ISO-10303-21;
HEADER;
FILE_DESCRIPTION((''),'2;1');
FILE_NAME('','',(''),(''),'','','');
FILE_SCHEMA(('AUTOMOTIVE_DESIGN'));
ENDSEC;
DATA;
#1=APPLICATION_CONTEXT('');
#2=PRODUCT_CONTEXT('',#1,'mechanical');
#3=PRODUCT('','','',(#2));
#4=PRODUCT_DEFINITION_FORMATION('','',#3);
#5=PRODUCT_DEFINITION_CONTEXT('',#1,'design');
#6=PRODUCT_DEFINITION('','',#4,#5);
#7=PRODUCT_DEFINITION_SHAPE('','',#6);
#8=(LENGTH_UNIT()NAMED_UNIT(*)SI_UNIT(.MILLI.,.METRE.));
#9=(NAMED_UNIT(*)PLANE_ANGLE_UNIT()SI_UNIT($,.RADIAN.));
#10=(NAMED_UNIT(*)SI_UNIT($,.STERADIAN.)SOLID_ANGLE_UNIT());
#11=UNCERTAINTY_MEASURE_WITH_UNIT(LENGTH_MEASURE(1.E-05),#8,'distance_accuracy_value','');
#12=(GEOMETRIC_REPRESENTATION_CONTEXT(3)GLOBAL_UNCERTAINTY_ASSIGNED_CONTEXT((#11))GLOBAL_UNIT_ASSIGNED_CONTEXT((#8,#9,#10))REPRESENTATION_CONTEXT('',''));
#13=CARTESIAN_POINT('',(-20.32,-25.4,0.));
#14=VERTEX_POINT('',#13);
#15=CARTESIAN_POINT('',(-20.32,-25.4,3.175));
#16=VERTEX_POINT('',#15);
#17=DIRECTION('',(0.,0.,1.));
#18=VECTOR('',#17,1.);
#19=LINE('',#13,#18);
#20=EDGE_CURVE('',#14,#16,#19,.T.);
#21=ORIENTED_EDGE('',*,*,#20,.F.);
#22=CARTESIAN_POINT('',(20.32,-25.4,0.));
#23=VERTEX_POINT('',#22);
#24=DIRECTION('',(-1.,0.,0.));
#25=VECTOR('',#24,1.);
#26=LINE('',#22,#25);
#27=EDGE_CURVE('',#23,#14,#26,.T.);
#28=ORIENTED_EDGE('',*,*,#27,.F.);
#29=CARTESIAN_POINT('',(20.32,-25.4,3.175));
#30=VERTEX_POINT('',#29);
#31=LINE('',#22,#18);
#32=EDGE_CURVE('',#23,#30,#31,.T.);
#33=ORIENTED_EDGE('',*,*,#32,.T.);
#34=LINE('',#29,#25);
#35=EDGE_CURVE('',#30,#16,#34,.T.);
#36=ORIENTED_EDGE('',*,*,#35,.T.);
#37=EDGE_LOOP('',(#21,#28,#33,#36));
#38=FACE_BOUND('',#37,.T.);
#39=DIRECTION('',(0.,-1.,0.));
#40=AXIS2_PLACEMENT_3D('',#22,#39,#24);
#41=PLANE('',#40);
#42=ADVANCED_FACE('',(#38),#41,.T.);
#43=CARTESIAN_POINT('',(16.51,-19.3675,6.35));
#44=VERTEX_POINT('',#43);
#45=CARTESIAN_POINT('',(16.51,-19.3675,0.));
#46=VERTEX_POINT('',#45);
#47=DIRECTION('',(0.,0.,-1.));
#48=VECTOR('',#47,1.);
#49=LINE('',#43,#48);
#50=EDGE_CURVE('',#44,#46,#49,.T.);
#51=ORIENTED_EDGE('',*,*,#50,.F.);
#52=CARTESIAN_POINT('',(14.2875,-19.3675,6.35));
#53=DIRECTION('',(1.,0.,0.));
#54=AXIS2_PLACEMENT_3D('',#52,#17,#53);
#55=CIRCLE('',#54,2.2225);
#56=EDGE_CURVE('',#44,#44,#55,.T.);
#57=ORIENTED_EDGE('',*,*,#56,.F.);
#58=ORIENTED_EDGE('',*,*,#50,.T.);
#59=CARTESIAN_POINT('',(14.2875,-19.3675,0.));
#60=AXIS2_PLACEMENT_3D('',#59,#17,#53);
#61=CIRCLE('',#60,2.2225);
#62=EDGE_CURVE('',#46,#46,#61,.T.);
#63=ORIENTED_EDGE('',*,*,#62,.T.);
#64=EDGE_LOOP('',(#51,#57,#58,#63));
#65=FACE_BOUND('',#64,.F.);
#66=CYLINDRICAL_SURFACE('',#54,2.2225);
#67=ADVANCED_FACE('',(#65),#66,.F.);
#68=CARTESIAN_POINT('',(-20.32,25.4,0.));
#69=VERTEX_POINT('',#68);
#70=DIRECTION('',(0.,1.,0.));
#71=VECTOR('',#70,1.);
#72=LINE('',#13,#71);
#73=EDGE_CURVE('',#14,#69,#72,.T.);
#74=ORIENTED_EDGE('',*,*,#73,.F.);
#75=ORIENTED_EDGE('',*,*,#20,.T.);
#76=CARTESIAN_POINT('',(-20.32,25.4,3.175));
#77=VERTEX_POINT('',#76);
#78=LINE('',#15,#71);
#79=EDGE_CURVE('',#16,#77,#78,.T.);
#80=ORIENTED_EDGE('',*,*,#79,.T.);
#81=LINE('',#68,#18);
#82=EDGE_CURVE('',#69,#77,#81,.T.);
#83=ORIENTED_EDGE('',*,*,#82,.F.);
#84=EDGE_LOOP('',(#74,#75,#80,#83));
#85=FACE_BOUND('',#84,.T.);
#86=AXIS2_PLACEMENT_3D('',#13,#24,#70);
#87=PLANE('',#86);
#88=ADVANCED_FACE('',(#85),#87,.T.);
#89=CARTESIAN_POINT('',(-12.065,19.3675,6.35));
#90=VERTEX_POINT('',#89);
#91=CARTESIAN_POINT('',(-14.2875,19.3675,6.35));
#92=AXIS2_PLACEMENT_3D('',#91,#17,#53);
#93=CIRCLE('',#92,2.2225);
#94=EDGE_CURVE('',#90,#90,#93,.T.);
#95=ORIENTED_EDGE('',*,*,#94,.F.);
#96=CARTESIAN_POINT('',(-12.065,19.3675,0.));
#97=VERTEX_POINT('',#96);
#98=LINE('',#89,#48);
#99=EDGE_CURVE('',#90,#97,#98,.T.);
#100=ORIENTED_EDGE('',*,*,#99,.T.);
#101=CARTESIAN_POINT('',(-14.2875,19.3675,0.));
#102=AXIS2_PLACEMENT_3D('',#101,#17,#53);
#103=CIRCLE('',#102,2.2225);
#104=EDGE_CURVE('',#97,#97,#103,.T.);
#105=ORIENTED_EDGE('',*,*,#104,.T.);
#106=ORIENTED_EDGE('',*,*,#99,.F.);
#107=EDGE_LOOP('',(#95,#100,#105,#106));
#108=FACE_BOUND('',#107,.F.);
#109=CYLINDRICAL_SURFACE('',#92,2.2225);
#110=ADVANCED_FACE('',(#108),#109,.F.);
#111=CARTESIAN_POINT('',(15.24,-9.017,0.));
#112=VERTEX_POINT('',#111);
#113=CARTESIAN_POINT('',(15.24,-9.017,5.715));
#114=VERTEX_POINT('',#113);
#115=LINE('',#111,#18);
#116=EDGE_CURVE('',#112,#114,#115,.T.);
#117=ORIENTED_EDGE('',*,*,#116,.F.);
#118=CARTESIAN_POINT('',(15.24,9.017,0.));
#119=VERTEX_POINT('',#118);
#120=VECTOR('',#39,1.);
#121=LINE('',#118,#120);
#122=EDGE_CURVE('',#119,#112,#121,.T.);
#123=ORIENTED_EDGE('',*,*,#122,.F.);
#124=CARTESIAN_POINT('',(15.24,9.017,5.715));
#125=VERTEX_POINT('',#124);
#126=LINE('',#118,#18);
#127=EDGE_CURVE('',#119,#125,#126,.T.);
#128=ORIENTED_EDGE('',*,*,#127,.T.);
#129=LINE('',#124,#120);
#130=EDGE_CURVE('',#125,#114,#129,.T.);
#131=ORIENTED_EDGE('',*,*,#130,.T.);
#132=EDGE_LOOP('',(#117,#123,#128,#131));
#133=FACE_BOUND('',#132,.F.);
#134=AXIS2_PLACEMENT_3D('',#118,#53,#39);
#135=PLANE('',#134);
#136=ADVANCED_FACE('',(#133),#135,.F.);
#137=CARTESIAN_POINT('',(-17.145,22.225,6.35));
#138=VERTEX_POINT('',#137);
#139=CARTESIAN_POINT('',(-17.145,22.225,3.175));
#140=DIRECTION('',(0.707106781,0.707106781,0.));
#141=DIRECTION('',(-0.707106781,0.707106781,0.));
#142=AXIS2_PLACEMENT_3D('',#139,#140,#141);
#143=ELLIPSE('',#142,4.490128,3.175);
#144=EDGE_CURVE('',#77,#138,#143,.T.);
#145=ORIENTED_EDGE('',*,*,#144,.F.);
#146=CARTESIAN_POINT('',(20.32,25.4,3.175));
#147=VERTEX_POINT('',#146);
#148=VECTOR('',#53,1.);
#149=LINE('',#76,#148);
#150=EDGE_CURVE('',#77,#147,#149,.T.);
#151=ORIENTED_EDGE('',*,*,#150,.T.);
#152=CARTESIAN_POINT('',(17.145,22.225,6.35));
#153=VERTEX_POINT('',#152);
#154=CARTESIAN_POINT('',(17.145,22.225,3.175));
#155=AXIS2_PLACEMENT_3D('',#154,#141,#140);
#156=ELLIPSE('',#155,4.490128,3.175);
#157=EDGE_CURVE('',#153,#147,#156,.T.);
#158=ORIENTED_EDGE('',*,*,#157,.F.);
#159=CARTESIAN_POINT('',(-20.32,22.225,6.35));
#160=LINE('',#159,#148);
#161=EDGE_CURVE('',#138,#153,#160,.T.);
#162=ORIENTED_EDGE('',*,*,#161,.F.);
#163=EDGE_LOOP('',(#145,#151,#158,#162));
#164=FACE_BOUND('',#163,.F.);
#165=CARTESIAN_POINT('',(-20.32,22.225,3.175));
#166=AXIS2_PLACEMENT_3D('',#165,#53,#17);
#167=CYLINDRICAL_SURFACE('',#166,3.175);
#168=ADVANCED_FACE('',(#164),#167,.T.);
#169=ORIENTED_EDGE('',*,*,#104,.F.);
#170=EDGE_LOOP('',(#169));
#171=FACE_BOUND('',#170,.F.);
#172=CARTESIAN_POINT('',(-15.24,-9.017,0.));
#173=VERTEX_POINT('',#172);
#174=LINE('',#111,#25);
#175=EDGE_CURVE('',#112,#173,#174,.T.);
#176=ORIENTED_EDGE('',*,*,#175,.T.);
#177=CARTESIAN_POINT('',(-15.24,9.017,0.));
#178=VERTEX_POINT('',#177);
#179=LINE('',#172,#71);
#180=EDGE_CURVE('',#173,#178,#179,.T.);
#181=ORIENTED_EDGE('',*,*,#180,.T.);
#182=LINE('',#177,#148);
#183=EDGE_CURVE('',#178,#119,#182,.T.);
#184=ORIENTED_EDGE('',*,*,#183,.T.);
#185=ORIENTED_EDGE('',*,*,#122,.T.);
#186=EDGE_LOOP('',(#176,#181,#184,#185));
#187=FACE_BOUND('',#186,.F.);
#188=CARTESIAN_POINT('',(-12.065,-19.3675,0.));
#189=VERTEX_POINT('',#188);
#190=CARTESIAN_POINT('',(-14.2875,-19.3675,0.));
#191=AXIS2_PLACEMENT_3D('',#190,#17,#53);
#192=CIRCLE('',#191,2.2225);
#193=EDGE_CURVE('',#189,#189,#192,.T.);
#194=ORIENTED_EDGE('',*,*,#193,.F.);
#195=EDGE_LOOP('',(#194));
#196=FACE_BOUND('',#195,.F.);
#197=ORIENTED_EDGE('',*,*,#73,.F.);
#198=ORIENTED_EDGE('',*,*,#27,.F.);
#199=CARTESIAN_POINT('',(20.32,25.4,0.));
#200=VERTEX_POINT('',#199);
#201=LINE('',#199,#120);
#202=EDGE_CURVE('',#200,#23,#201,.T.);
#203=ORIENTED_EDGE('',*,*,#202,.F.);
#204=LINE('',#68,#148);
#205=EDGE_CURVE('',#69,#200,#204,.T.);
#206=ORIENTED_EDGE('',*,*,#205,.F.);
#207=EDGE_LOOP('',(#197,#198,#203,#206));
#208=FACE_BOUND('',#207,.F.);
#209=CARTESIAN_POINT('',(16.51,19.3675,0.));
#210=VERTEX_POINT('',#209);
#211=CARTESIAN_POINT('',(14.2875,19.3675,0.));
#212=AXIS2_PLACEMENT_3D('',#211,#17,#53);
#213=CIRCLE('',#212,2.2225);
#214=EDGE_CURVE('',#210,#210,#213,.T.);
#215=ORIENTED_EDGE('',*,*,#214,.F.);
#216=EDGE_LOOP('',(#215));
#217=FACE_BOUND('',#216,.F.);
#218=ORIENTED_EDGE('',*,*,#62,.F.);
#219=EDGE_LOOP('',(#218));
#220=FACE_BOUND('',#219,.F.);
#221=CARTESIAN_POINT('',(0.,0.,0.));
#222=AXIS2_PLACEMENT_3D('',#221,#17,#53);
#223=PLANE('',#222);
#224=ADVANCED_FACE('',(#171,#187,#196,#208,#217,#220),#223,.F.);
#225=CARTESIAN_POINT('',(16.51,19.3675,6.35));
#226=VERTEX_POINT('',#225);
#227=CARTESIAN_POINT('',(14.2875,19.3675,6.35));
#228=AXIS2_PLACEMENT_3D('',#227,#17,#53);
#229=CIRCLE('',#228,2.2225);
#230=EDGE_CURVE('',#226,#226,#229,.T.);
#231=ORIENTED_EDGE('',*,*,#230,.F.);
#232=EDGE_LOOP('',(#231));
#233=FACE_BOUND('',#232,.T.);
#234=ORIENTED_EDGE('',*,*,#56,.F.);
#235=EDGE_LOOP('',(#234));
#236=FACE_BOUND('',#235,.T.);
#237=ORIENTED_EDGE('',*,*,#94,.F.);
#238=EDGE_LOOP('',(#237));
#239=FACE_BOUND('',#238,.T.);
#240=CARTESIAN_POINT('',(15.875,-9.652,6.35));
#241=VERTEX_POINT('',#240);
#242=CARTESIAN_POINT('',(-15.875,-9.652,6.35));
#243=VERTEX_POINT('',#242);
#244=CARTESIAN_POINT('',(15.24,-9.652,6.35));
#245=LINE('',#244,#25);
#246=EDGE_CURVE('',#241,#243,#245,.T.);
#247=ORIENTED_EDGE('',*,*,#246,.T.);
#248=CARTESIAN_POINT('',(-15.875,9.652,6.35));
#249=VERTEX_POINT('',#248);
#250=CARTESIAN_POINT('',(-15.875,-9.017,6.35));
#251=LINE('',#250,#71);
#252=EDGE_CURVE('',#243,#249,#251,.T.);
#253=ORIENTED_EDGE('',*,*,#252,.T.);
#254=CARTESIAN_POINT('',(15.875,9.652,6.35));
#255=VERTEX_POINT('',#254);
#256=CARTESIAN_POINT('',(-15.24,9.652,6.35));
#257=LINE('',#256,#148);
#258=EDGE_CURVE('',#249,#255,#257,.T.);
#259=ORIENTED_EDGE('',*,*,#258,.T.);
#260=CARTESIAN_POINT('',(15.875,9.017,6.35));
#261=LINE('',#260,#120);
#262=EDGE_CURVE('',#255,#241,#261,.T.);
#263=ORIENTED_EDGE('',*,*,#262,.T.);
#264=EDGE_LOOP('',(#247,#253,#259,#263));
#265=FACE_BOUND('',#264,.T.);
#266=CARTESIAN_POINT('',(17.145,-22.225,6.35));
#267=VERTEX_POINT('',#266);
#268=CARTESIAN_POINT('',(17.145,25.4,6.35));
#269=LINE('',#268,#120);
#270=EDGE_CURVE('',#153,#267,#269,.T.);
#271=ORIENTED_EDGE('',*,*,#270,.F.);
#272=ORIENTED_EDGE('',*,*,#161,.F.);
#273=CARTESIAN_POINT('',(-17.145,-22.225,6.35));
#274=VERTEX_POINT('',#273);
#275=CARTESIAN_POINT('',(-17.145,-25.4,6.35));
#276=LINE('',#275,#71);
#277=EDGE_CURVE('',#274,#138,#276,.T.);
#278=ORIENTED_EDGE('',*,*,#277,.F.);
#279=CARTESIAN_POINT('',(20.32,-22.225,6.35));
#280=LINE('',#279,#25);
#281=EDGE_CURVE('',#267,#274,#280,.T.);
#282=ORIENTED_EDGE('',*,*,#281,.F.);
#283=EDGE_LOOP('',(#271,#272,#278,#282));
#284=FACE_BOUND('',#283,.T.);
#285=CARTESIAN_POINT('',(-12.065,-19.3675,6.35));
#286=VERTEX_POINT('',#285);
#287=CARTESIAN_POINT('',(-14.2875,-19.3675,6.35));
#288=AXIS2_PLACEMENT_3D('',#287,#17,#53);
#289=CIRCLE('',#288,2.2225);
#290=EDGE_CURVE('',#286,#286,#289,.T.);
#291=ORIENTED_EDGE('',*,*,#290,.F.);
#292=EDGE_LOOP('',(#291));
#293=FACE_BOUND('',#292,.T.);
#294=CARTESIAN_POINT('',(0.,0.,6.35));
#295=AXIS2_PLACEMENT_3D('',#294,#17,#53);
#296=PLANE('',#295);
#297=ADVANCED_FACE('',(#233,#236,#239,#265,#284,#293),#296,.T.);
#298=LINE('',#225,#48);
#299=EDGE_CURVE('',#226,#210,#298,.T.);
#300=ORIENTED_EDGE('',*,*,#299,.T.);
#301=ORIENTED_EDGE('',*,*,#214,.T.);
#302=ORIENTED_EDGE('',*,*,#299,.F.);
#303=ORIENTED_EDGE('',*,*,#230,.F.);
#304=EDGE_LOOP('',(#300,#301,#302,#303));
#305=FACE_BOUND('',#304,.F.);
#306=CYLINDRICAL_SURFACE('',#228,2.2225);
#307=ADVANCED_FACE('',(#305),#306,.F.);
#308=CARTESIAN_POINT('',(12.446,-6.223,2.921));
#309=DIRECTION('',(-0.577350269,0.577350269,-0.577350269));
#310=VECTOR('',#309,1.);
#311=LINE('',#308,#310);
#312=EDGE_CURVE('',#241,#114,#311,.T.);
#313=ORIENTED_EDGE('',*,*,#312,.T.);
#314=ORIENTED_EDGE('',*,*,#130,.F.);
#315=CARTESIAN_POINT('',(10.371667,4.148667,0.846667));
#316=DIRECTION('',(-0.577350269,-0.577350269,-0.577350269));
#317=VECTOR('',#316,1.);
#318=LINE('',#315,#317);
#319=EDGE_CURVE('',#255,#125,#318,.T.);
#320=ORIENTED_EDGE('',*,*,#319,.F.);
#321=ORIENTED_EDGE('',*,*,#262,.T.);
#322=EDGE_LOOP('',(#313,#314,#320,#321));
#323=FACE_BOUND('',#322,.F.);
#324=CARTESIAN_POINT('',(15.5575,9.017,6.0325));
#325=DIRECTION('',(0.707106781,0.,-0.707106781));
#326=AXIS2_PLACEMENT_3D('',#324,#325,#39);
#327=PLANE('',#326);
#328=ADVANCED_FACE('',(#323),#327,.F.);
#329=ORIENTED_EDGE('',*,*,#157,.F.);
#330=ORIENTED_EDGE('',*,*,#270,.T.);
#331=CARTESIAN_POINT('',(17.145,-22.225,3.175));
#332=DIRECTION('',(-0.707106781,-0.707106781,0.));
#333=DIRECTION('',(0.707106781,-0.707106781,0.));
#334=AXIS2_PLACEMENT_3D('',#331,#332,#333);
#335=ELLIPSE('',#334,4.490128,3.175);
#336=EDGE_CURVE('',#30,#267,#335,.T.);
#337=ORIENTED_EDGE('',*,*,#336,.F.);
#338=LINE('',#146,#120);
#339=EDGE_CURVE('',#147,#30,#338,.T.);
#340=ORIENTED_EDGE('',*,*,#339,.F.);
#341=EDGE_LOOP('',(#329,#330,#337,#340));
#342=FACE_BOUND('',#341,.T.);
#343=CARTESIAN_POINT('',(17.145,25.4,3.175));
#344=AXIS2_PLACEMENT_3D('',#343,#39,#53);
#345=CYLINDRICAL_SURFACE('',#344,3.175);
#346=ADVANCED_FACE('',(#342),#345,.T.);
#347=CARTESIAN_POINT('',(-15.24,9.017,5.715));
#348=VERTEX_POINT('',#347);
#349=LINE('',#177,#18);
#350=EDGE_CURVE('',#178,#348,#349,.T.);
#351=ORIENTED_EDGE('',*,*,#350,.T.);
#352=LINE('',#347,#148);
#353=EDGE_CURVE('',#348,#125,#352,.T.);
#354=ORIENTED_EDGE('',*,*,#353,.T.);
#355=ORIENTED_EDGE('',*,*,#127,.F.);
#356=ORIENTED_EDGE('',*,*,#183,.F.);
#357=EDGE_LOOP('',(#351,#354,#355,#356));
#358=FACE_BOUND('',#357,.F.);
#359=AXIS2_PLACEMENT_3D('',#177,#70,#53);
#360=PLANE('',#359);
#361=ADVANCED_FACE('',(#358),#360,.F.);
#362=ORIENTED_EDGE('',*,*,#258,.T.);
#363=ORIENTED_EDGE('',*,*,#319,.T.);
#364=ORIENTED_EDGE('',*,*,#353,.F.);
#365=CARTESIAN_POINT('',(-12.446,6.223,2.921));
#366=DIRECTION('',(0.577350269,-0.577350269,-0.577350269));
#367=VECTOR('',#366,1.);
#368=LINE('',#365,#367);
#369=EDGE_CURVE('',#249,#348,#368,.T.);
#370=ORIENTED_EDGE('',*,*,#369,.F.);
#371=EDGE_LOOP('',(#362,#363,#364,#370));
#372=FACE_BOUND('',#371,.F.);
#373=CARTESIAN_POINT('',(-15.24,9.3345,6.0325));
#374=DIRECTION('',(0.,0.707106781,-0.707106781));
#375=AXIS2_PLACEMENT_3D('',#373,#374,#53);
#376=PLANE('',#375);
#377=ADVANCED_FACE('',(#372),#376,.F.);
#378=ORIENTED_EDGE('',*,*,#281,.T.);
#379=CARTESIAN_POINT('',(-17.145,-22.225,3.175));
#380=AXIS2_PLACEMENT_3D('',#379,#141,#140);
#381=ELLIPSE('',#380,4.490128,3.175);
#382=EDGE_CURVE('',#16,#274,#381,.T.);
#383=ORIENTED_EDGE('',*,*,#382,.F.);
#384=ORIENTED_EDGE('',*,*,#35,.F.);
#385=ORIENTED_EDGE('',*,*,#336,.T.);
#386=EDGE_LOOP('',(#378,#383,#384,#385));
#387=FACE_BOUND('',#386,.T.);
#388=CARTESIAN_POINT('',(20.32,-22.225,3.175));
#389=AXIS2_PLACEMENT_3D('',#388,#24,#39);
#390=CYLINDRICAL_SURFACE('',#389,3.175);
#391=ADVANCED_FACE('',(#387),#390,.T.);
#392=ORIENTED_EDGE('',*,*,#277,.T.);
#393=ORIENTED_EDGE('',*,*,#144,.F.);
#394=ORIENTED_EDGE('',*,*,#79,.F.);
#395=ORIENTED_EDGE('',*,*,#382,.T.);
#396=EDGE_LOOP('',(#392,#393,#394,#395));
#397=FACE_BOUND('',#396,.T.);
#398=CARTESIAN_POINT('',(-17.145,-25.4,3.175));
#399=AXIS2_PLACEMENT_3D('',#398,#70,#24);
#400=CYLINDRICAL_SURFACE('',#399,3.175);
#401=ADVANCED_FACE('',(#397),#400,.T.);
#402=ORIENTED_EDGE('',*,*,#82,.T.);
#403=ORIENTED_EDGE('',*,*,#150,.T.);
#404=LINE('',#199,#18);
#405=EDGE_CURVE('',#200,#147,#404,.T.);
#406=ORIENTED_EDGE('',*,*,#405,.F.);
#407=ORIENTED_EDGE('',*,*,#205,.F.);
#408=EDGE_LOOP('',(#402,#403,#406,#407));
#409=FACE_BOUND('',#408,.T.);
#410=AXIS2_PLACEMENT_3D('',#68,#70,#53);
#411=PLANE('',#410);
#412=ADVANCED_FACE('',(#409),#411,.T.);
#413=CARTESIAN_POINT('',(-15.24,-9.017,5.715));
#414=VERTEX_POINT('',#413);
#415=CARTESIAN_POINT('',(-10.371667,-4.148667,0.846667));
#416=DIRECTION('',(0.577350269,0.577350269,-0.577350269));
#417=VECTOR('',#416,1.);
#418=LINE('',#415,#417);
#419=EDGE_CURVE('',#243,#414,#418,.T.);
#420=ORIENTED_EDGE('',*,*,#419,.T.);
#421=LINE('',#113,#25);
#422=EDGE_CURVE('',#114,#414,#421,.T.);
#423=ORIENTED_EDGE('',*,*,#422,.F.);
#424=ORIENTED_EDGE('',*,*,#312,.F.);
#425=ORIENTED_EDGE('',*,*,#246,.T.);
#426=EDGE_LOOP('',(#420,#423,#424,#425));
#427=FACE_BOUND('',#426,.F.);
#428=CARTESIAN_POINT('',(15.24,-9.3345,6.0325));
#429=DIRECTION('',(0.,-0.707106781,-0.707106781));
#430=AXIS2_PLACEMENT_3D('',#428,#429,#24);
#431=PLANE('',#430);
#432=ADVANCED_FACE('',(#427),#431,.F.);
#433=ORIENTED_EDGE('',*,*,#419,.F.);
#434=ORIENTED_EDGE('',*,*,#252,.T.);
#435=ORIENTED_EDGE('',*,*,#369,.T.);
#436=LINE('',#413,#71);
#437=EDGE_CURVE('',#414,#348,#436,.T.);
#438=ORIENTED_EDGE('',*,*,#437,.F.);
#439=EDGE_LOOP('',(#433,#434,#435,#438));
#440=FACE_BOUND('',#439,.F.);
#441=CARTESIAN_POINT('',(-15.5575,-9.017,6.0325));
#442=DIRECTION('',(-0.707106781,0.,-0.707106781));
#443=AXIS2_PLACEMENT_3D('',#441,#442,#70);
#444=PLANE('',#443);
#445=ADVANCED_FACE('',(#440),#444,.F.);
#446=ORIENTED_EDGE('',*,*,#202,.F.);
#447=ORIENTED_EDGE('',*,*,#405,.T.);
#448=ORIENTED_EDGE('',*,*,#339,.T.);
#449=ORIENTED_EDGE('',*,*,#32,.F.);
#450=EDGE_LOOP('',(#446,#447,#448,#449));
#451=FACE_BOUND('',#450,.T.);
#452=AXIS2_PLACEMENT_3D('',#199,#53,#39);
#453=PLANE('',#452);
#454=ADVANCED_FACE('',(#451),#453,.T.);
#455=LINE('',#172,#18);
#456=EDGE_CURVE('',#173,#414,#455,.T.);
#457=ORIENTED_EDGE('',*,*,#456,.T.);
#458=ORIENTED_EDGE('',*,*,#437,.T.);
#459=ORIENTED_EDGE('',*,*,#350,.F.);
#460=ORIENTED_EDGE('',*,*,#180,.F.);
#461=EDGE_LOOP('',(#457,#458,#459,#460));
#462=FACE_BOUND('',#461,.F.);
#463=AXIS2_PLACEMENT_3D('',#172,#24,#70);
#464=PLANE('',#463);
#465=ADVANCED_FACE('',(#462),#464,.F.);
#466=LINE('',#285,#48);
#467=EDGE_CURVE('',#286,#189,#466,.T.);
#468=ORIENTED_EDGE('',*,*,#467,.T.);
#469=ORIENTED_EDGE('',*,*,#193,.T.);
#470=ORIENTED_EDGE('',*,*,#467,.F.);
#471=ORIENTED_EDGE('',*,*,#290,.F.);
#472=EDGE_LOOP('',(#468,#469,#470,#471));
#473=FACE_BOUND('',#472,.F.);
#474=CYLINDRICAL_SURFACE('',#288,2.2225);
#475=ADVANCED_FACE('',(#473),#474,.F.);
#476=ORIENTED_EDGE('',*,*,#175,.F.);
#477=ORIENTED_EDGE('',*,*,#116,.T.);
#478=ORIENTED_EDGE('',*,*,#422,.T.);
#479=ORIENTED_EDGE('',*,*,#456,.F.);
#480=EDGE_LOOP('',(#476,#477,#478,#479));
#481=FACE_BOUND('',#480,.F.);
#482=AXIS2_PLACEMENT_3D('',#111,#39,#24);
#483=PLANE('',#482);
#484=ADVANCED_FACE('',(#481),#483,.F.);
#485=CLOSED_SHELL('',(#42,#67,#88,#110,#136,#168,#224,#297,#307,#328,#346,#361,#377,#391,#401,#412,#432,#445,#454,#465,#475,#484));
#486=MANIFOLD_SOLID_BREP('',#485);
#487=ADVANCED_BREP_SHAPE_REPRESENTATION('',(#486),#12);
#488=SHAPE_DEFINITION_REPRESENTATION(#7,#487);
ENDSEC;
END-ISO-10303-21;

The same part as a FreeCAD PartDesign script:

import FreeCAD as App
import Part
import Sketcher
Q = App.Units.Quantity


def edges_at(feature, points):
    """Names of the edges that pass closest to the given points."""
    edges = feature.Shape.Edges
    near = lambda p: min(range(len(edges)), key=lambda i: edges[i].distToShape(Part.Vertex(*p))[0])
    return sorted({f"Edge{near(p) + 1}" for p in points})


def add_polygon(sketch, points):
    """Adds a closed chain of lines whose ends are joined by coincident constraints."""
    first, n = sketch.GeometryCount, len(points)
    for a, b in zip(points, points[1:] + points[:1]):
        sketch.addGeometry(Part.LineSegment(App.Vector(*a, 0), App.Vector(*b, 0)), False)
    for i in range(n):
        sketch.addConstraint(Sketcher.Constraint("Coincident", first + i, 2, first + (i + 1) % n, 1))

doc = App.newDocument("Part")
body = doc.addObject("PartDesign::Body", "Body")

# Sketch on XY plane
sketch1 = body.newObject("Sketcher::SketchObject", "Sketch")
sketch1.AttachmentSupport = (doc.getObject("XY_Plane"), [""])
sketch1.MapMode = "FlatFace"
add_polygon(sketch1, [(-20, -25), (20, -25), (20, 25), (-20, 25)])  # lines 0-3
add_polygon(sketch1, [(15, 9), (15, -9), (-15, -9), (-15, 9)])  # lines 4-7
sketch1.addConstraint([
    Sketcher.Constraint("Horizontal", 0),
    Sketcher.Constraint("Vertical", 1),
    Sketcher.Constraint("Horizontal", 2),
    Sketcher.Constraint("Vertical", 3),
    Sketcher.Constraint("Vertical", 4),
    Sketcher.Constraint("Horizontal", 5),
    Sketcher.Constraint("Vertical", 6),
    Sketcher.Constraint("Horizontal", 7),
    Sketcher.Constraint("Symmetric", 0, 2, 2, 2, -1, 1),
    Sketcher.Constraint("Symmetric", 4, 2, 6, 2, -1, 1),
    Sketcher.Constraint("DistanceY", 1, 1, 1, 2, Q("2 in")),
    Sketcher.Constraint("DistanceX", 0, 1, 0, 2, Q("1.6 in")),
    Sketcher.Constraint("DistanceX", 5, 2, 5, 1, Q("1.2 in")),
    Sketcher.Constraint("DistanceY", 4, 2, 4, 1, Q("0.71 in")),
])
pad1 = body.newObject("PartDesign::Pad", "Pad")
pad1.Profile = sketch1
pad1.Length = Q("0.25 in")

# Sketch on XY plane
sketch2 = body.newObject("Sketcher::SketchObject", "Sketch001")
sketch2.AttachmentSupport = (doc.getObject("XY_Plane"), [""])
sketch2.MapMode = "FlatFace"
sketch2.AttachmentOffset = App.Placement(App.Vector(0, 0, 0.25 * 25.4), App.Rotation())
sketch2.addGeometry([
    Part.Circle(App.Vector(-14.3, -19.4, 0), App.Vector(0, 0, 1), 2.2),
    Part.Circle(App.Vector(14.3, -19.4, 0), App.Vector(0, 0, 1), 2.2),
    Part.Circle(App.Vector(-14.3, 19.4, 0), App.Vector(0, 0, 1), 2.2),
    Part.Circle(App.Vector(14.3, 19.4, 0), App.Vector(0, 0, 1), 2.2),
], False)
sketch2.addConstraint([
    Sketcher.Constraint("Equal", 0, 1),
    Sketcher.Constraint("Equal", 1, 2),
    Sketcher.Constraint("Equal", 2, 3),
    Sketcher.Constraint("Symmetric", 1, 3, 2, 3, -1, 1),
    Sketcher.Constraint("Symmetric", 0, 3, 3, 3, -1, 1),
    Sketcher.Constraint("Symmetric", 0, 3, 1, 3, -2),
    Sketcher.Constraint("Diameter", 0, Q("0.175 in")),
    Sketcher.Constraint("DistanceX", 0, 3, -1, 1, Q("0.5625 in")),
    Sketcher.Constraint("DistanceY", 0, 3, 2, 3, Q("1.525 in")),
])
pocket1 = body.newObject("PartDesign::Pocket", "Pocket")
pocket1.Profile = sketch2
pocket1.Type = "ThroughAll"
doc.recompute()

fillet = body.newObject("PartDesign::Fillet", "Fillet")
fillet.Base = (pocket1, edges_at(pocket1, [
    (-20.32, 0, 6.35),
    (0, 25.4, 6.35),
    (20.32, 0, 6.35),
    (0, -25.4, 6.35),
]))
fillet.Radius = Q("0.125 in")
doc.recompute()

chamfer = body.newObject("PartDesign::Chamfer", "Chamfer")
chamfer.Base = (fillet, edges_at(fillet, [
    (-15.24, 0, 6.35),
    (0, 9.017, 6.35),
    (15.24, 0, 6.35),
    (0, -9.017, 6.35),
]))
chamfer.Size = Q("0.025 in")

doc.recompute()
